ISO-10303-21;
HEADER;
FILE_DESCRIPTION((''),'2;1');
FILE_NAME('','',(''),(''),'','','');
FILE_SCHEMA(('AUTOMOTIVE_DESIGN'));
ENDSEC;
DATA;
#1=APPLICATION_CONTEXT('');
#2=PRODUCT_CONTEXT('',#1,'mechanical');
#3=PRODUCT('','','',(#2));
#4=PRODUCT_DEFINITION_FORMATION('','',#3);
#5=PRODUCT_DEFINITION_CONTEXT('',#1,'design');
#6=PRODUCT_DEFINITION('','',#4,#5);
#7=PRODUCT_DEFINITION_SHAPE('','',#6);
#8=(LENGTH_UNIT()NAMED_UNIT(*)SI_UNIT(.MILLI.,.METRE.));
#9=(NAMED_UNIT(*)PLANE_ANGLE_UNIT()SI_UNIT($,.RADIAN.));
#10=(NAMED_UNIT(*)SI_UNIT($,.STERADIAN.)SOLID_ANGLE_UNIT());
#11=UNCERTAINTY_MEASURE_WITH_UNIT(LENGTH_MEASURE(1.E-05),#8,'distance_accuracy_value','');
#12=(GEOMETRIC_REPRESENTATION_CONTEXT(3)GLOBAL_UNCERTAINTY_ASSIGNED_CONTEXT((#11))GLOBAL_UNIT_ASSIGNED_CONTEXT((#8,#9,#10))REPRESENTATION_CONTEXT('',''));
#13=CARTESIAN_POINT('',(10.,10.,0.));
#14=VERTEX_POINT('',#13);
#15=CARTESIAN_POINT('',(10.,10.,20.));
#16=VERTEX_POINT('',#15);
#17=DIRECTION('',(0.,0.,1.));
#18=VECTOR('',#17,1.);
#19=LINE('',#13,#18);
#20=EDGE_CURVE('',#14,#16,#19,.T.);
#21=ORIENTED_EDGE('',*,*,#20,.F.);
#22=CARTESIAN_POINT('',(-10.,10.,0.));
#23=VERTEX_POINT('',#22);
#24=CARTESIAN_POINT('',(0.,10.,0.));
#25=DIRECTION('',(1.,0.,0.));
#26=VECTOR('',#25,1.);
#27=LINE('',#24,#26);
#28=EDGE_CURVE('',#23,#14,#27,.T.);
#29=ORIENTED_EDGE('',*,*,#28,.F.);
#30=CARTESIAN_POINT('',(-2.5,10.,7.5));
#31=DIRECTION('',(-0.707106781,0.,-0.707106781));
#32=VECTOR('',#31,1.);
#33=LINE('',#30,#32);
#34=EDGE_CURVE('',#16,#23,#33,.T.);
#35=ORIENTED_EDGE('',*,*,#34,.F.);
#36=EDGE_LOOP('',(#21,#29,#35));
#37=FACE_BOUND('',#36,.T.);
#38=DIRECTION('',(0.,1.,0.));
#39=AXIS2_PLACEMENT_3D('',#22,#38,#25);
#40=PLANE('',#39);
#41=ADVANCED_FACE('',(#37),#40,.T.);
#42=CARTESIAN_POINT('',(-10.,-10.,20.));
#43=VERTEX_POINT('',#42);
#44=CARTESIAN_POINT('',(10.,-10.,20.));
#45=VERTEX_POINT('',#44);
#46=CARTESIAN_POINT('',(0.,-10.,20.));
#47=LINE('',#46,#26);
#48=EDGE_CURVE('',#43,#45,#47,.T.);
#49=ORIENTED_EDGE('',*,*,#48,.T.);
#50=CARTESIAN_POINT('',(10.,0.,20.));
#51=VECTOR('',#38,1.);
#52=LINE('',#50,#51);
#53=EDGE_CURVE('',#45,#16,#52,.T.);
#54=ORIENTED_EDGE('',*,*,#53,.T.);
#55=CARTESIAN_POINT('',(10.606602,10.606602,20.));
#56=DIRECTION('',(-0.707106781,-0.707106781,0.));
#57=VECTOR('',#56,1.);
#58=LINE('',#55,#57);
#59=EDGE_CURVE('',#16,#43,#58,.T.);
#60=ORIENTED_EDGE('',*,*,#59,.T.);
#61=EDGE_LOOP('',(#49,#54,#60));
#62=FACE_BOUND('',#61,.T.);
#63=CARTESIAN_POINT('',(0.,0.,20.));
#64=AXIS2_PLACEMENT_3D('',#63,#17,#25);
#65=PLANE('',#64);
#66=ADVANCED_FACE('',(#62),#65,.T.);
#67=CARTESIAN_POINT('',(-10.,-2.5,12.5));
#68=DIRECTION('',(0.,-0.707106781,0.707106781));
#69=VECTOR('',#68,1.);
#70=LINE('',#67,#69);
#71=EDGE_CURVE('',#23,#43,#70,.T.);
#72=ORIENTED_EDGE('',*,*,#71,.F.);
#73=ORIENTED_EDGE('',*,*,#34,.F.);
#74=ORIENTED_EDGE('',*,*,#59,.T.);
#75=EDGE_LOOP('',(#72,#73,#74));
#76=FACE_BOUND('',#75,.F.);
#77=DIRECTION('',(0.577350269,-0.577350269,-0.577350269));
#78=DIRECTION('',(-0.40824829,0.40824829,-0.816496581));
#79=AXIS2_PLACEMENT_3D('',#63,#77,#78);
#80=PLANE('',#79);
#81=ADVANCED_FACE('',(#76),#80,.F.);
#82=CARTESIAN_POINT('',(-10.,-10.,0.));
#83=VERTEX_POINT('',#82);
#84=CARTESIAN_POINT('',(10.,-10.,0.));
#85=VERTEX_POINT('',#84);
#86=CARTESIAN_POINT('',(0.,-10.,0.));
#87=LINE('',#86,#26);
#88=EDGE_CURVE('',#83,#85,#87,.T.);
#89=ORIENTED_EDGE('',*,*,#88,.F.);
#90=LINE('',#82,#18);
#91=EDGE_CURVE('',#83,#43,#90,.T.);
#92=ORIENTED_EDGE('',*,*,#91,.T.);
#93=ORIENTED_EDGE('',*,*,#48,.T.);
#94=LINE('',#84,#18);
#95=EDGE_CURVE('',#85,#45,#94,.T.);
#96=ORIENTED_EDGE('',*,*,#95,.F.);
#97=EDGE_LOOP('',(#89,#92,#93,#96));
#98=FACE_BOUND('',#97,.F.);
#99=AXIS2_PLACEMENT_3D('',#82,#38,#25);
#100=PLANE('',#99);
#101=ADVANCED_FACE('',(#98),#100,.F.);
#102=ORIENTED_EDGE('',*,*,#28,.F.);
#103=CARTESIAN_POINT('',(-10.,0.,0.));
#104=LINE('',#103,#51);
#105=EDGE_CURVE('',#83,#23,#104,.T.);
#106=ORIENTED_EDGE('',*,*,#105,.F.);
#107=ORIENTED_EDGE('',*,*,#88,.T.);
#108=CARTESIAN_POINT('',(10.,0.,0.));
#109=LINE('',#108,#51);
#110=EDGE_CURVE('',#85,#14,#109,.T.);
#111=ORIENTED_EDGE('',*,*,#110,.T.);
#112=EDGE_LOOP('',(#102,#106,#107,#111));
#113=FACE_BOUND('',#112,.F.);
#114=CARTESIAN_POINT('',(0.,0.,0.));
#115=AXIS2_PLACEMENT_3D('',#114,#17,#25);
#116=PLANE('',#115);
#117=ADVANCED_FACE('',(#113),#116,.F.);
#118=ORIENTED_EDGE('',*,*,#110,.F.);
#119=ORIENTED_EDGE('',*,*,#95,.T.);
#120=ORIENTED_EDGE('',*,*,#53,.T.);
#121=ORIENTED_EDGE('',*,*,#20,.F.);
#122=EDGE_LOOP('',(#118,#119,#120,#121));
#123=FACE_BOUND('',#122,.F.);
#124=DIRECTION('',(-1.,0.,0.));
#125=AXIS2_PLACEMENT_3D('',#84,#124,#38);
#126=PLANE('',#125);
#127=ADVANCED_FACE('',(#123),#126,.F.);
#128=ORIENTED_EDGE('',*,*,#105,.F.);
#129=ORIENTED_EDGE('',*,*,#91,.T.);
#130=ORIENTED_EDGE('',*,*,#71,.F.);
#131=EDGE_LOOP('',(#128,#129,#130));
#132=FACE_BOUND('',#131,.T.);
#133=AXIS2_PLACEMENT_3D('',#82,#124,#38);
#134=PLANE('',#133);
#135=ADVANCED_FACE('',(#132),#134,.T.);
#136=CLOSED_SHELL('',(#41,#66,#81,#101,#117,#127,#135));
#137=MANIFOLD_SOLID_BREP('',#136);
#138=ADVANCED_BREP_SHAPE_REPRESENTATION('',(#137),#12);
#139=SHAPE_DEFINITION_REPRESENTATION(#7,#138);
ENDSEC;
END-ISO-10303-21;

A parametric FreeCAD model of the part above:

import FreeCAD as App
import Part
import Sketcher
from FreeCAD import Vector


def add_polygon(sketch, points):
    """Adds a closed chain of lines whose ends are joined by coincident constraints."""
    first, n = sketch.GeometryCount, len(points)
    for a, b in zip(points, points[1:] + points[:1]):
        sketch.addGeometry(Part.LineSegment(App.Vector(*a, 0), App.Vector(*b, 0)), False)
    for i in range(n):
        sketch.addConstraint(Sketcher.Constraint("Coincident", first + i, 2, first + (i + 1) % n, 1))

doc = App.newDocument("Part")
body = doc.addObject("PartDesign::Body", "Body")

sketch1 = doc.addObject("Sketcher::SketchObject", "Sketch")
body.addObject(sketch1)
sketch1.AttachmentSupport = (doc.XY_Plane, [""])
sketch1.MapMode = "FlatFace"
add_polygon(sketch1, [(-10, 10), (-10, -10), (10, -10), (10, 10)])
sketch1.addConstraint([
    Sketcher.Constraint("Vertical", 0),
    Sketcher.Constraint("Horizontal", 1),
    Sketcher.Constraint("Vertical", 2),
    Sketcher.Constraint("Horizontal", 3),
    Sketcher.Constraint("Symmetric", 0, 2, 2, 2, -1, 1),
    Sketcher.Constraint("Equal", 3, 0),
    Sketcher.Constraint("DistanceX", 1, 1, 1, 2, 20.0),
])
pad1 = doc.addObject("PartDesign::Pad", "Pad")
body.addObject(pad1)
pad1.Profile = sketch1
pad1.Length = 20

sketch2 = doc.addObject("Sketcher::SketchObject", "Sketch001")
body.addObject(sketch2)
sketch2.Placement = App.Placement(Vector(0, 0, 0), App.Rotation(Vector(-0.707106781, 0.707106781, 0), Vector(0, 0, 0.999999999), Vector(0.707106781, 0.707106781, 0), "ZXY"))
add_polygon(sketch2, [(14, 0), (14, 20), (0, 20)])
sketch2.addConstraint([
    Sketcher.Constraint("Vertical", 0),
    Sketcher.Constraint("Horizontal", 1),
    Sketcher.Constraint("PointOnObject", 1, 2, -2),
    Sketcher.Constraint("PointOnObject", 2, 2, -1),
    Sketcher.Constraint("DistanceY", 0, 1, 0, 2, 20.0),
    Sketcher.Constraint("DistanceX", 1, 2, 1, 1, 14.142136),
])
pocket1 = doc.addObject("PartDesign::Pocket", "Pocket")
body.addObject(pocket1)
pocket1.Profile = sketch2
pocket1.Length = 30
pocket1.Midplane = True

doc.recompute()
